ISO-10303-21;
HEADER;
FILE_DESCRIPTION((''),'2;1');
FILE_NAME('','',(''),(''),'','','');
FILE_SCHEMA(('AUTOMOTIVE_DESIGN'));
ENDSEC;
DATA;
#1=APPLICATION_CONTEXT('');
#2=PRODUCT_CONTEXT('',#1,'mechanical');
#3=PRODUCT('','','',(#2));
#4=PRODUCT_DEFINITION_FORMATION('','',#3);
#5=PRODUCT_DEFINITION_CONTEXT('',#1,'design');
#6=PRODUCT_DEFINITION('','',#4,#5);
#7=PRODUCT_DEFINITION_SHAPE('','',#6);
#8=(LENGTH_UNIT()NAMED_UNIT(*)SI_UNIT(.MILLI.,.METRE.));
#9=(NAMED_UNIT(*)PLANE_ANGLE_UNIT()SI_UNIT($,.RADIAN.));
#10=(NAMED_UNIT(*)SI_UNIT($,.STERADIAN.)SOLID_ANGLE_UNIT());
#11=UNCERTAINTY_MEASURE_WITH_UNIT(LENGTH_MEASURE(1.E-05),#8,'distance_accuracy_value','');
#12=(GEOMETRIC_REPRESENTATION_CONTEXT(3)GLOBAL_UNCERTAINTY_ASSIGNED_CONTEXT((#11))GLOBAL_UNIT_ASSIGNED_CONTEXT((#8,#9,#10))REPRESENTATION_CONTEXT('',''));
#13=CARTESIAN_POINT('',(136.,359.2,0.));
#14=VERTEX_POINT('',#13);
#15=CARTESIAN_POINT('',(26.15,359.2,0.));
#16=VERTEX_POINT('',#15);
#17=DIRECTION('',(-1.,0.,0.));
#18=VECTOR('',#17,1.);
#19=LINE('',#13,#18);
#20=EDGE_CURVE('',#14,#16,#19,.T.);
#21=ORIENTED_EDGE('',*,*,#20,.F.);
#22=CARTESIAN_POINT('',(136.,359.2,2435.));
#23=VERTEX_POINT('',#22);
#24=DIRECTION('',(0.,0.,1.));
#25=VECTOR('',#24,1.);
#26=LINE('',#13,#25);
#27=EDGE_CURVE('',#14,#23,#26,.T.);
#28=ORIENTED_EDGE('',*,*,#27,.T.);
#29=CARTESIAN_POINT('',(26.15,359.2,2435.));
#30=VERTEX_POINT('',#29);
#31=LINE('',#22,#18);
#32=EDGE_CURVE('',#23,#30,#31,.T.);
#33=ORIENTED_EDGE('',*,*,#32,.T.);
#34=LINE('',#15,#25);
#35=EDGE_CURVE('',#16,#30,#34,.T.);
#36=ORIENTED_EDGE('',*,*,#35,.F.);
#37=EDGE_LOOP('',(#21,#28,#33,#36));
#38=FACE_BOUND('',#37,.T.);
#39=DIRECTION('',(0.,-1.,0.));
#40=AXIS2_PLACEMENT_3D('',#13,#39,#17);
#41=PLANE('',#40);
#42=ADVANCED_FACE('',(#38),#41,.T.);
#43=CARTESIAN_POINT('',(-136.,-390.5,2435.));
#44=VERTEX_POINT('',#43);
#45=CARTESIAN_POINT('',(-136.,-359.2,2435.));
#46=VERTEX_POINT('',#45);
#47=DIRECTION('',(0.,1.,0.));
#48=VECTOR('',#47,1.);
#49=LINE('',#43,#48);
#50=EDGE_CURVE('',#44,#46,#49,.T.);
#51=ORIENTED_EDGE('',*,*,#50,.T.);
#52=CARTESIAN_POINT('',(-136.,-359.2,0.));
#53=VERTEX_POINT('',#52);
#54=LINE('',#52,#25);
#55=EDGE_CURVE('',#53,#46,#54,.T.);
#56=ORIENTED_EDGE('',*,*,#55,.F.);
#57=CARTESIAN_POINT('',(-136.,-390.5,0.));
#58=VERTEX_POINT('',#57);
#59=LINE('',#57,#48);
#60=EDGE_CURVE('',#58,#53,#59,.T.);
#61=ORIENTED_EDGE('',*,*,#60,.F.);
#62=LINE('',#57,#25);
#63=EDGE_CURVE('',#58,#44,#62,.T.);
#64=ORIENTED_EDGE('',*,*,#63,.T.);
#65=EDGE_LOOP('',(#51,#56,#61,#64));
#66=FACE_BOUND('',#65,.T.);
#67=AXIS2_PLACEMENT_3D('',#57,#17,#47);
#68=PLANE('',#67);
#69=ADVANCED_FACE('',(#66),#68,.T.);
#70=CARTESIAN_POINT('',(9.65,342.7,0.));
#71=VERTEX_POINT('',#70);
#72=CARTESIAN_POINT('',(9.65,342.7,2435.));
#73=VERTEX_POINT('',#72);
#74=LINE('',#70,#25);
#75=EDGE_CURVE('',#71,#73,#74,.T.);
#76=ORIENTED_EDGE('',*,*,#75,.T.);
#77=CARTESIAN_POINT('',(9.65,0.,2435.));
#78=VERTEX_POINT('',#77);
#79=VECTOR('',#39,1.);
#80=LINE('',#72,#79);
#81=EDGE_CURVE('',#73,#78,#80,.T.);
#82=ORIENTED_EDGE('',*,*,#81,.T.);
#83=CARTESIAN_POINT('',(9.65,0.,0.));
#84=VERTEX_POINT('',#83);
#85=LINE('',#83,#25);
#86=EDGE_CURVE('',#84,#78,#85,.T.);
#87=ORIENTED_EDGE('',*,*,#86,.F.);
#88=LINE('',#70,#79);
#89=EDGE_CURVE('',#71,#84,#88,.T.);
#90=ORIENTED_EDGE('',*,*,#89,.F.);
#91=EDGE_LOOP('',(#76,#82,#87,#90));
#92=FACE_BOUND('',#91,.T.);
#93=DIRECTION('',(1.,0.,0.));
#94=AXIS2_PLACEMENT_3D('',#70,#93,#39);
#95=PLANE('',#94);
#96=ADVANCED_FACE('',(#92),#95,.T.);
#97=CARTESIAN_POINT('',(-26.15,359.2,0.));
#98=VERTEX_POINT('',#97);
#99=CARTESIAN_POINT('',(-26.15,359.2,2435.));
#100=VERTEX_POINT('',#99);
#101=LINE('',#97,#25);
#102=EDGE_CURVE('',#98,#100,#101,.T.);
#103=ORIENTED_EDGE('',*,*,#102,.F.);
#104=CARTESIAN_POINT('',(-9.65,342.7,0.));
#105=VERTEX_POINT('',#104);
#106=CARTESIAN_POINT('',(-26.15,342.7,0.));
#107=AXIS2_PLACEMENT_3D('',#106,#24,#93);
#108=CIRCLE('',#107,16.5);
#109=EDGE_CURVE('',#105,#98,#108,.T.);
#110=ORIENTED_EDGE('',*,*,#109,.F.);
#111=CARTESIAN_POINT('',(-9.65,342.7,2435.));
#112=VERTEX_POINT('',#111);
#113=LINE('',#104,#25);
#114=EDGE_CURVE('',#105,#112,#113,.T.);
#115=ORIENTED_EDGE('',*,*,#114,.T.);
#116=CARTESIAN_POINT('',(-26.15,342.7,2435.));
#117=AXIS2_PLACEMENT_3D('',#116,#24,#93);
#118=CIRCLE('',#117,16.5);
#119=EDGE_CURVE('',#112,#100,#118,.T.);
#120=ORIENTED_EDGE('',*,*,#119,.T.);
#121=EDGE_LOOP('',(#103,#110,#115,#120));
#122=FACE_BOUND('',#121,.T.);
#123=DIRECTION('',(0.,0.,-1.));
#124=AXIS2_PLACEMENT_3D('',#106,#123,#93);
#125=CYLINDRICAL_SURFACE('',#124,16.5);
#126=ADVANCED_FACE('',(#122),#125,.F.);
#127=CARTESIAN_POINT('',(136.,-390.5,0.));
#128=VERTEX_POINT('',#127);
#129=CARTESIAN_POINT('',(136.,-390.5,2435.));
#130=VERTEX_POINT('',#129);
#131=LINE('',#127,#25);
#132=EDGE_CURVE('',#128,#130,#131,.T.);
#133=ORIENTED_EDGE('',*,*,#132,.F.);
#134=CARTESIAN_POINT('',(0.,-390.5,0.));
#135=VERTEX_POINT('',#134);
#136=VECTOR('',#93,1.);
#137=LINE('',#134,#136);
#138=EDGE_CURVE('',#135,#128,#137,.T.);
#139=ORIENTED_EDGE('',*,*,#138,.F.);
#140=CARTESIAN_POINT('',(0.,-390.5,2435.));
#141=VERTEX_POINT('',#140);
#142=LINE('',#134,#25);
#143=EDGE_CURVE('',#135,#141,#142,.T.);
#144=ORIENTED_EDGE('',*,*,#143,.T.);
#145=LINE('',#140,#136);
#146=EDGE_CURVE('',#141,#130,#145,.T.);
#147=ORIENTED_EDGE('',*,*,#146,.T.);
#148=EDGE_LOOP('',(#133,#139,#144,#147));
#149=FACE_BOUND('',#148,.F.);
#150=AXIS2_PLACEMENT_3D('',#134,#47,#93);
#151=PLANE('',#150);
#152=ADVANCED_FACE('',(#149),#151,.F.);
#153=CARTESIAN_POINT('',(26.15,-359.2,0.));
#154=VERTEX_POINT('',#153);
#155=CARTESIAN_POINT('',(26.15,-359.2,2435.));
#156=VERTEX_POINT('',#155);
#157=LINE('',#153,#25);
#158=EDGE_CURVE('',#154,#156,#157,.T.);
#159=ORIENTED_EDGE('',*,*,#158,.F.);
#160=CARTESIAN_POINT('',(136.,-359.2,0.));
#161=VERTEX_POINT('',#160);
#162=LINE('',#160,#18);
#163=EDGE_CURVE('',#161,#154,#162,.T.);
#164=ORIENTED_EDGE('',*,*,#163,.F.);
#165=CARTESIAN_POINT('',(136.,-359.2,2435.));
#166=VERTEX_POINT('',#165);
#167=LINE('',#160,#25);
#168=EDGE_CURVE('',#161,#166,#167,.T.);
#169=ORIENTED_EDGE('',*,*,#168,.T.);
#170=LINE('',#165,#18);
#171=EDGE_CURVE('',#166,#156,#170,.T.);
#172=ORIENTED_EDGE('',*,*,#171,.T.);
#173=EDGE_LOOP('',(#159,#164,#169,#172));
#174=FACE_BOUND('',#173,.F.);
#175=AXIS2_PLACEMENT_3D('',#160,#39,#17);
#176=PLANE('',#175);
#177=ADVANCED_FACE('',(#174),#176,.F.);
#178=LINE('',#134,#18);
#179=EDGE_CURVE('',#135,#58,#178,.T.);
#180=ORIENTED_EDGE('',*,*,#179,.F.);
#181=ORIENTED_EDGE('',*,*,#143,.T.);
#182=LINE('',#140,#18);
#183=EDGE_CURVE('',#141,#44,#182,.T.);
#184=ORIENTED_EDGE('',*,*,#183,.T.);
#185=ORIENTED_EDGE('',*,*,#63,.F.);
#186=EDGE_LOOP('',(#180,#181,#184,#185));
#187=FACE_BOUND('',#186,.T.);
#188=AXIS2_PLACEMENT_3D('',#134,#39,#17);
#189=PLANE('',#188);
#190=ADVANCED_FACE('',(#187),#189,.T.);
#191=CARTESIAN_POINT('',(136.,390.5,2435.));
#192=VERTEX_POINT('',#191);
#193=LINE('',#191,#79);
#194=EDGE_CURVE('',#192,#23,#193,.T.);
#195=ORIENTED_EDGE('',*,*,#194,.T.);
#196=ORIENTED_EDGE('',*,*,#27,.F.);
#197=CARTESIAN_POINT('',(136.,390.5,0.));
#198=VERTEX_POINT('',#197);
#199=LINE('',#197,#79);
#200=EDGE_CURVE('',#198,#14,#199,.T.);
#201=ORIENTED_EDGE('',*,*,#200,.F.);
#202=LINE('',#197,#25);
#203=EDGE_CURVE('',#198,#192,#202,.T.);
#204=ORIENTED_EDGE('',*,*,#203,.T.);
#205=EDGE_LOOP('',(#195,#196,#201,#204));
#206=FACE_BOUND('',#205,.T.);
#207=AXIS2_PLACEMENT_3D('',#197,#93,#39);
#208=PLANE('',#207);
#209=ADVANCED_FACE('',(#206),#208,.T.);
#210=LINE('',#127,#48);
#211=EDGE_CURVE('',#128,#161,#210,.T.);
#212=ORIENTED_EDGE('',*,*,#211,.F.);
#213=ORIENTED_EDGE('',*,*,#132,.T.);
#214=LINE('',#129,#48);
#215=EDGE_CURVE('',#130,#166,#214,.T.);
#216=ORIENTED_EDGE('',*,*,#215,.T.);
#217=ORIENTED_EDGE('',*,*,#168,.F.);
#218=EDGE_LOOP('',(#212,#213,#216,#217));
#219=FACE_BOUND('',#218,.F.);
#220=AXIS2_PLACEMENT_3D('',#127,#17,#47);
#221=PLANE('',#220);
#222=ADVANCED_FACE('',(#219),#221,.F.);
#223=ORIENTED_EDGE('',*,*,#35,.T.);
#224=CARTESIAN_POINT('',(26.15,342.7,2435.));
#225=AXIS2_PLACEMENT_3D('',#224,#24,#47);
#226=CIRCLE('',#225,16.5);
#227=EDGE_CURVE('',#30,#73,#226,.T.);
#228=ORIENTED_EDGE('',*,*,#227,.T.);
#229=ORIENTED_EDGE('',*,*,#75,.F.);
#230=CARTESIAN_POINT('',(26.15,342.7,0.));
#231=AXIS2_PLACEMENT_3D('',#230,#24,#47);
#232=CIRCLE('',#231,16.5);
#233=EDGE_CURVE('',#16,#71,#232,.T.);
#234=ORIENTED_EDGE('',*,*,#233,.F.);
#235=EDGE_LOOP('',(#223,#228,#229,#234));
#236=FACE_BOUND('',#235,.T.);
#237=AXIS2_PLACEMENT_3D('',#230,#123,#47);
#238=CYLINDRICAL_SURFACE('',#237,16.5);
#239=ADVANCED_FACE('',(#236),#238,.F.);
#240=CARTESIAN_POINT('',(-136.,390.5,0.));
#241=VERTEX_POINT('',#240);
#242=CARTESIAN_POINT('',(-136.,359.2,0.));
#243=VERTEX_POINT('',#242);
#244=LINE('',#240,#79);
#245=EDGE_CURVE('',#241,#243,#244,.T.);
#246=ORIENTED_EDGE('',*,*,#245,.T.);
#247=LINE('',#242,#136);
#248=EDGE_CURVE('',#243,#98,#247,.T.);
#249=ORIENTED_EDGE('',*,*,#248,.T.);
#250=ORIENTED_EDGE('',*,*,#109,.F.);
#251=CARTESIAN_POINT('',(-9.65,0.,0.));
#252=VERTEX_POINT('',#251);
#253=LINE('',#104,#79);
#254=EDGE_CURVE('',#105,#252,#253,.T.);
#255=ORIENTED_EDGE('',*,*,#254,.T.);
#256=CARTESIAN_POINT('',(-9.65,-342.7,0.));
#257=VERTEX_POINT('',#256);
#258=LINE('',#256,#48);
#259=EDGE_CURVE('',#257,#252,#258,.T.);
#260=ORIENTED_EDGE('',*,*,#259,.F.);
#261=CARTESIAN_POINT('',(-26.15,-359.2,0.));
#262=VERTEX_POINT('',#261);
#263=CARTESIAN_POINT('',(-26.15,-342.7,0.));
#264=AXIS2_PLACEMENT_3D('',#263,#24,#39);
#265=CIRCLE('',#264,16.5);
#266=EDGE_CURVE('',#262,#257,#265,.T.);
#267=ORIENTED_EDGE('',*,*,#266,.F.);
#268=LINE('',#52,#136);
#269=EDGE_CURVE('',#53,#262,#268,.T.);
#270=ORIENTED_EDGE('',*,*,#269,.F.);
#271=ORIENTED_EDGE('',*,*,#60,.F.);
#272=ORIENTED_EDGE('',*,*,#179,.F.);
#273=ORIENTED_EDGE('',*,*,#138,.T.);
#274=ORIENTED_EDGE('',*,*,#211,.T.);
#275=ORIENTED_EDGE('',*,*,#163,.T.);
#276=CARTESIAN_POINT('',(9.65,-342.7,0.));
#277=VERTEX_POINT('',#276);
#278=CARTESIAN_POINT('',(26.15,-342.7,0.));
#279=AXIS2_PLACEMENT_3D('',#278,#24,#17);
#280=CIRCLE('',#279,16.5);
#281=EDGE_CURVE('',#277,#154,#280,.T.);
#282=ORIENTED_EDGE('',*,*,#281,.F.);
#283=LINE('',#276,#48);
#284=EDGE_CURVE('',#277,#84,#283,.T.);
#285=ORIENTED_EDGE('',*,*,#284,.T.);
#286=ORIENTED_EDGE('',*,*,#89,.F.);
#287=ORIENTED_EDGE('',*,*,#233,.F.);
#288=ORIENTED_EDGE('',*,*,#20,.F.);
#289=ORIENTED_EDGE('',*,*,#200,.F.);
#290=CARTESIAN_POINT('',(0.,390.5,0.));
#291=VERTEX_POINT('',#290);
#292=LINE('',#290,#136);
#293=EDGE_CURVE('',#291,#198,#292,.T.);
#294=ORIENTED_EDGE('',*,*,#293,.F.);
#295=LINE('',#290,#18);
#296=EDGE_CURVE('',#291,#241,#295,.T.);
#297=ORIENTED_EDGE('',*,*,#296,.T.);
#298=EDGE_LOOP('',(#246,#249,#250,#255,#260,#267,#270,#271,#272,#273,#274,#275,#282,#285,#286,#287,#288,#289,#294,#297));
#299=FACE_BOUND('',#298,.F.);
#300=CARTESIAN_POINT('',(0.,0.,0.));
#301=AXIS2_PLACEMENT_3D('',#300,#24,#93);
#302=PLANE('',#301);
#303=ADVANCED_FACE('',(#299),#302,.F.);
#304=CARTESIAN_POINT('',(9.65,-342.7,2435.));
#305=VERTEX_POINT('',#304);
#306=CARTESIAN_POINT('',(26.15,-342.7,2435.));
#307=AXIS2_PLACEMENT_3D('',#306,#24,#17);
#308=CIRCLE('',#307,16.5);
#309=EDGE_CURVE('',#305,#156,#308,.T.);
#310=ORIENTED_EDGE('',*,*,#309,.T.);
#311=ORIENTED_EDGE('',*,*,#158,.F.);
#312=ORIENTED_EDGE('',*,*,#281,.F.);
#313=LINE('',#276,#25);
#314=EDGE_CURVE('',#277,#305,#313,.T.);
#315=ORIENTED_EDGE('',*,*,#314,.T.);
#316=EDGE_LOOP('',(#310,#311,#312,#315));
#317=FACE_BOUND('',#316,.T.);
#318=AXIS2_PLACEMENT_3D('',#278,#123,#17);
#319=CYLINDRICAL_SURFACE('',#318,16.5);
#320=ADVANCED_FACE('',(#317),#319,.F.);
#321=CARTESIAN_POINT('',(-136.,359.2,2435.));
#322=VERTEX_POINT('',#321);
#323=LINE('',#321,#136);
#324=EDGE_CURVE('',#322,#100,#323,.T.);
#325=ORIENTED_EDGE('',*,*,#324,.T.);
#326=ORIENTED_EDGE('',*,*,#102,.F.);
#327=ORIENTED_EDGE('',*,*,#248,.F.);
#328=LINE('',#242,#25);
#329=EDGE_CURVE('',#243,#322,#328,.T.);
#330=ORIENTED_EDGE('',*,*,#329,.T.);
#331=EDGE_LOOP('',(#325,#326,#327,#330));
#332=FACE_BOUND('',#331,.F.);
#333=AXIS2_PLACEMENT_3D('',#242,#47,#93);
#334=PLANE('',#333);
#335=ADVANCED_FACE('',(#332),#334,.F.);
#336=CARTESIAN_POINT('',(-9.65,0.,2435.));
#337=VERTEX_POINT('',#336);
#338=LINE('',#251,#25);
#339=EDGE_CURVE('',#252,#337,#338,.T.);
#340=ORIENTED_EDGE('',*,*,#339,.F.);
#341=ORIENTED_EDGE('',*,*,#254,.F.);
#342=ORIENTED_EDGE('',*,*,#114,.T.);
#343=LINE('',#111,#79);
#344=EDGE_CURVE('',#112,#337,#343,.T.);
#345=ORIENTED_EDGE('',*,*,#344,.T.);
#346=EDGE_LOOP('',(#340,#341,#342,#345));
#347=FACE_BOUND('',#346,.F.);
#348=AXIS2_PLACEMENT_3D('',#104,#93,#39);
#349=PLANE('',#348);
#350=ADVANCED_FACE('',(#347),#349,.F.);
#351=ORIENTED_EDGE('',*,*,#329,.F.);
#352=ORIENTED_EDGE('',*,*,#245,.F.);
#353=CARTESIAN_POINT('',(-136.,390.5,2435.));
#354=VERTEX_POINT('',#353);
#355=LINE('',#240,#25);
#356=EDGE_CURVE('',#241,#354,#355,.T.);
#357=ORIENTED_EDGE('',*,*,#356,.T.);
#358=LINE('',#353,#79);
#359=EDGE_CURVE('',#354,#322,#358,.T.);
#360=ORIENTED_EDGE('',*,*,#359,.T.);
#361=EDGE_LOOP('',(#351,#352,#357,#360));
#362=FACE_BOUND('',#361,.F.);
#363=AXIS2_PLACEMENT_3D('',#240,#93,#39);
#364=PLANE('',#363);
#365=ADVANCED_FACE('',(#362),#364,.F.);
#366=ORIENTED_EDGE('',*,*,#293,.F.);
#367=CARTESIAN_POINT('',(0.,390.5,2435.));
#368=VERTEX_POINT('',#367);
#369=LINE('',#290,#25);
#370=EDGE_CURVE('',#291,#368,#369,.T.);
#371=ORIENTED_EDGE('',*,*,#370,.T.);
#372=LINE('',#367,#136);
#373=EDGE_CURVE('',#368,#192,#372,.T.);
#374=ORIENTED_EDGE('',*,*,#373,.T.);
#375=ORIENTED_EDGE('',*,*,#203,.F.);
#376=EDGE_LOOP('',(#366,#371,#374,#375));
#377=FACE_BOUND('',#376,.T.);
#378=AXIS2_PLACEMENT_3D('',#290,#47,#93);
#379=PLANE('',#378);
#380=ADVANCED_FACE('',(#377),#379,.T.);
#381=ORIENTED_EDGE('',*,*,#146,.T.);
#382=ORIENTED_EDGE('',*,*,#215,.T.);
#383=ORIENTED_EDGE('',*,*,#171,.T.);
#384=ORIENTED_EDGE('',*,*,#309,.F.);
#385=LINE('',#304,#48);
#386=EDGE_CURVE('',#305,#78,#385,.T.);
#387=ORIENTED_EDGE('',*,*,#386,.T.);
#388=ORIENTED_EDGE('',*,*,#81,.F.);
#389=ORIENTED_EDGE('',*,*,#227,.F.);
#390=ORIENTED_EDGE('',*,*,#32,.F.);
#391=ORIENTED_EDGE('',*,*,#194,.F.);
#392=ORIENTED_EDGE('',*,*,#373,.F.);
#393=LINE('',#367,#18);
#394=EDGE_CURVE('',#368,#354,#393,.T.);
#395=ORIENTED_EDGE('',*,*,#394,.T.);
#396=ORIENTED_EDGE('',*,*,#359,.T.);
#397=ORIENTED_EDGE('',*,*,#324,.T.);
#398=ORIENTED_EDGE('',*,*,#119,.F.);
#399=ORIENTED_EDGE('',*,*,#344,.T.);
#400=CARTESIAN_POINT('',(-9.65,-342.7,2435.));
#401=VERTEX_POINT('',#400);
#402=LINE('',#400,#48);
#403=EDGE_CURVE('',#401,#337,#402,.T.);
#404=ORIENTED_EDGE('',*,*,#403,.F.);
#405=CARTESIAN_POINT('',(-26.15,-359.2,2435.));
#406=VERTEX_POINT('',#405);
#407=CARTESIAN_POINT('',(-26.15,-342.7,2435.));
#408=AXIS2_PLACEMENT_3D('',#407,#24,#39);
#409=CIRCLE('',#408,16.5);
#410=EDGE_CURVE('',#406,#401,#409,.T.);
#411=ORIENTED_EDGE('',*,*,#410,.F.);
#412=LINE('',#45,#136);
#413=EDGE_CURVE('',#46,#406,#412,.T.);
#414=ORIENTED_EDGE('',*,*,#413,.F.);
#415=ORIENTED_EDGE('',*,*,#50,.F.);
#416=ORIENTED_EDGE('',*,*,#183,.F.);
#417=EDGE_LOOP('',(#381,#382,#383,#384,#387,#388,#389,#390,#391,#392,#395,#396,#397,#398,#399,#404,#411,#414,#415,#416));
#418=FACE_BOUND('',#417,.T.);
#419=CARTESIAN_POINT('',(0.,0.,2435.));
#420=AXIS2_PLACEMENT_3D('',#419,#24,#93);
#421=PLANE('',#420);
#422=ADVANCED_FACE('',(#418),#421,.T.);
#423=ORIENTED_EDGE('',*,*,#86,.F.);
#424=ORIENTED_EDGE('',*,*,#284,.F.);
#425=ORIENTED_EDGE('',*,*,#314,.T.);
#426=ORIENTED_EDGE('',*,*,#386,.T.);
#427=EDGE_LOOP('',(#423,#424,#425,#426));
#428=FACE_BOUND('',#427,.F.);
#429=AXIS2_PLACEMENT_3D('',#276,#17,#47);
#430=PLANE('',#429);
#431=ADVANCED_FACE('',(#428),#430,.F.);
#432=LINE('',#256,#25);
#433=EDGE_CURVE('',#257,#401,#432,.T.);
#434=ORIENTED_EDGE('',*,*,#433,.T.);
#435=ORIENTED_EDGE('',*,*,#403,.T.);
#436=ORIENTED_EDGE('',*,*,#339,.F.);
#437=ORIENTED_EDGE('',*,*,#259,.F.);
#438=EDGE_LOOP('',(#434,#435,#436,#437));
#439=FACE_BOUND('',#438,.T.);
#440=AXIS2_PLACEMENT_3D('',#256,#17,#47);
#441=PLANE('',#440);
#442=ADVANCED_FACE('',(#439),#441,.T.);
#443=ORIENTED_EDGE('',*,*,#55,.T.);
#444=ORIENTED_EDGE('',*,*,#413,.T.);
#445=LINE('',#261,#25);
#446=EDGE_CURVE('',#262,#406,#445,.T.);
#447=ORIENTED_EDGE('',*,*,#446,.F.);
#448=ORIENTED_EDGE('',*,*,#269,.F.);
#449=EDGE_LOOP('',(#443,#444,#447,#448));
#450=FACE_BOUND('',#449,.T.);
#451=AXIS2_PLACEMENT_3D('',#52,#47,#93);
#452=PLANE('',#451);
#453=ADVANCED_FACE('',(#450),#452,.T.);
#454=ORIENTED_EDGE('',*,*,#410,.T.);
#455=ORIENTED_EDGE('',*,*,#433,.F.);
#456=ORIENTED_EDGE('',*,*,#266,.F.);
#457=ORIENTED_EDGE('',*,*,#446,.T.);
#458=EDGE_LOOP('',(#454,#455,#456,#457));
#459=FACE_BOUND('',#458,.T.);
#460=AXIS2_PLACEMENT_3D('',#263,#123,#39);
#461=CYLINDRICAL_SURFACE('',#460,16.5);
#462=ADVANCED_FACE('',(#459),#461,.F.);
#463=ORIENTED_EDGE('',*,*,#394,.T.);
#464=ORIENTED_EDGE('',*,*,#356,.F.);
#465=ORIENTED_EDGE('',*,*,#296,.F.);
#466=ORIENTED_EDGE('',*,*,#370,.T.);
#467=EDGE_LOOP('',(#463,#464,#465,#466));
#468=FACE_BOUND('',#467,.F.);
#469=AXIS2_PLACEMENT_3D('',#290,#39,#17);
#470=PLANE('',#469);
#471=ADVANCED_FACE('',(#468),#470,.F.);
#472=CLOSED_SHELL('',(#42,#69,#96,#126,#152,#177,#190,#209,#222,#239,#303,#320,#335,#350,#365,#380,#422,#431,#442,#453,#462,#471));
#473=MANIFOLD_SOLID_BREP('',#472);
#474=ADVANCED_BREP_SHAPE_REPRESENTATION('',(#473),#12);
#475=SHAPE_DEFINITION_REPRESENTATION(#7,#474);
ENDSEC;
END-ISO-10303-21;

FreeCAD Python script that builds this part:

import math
import FreeCAD as App
import Part
import Sketcher
from FreeCAD import Vector

doc = App.newDocument("Part")
params = doc.addObject("Spreadsheet::Sheet", "Params")
for row, (alias, value) in enumerate([
    ("sketch1_radius", "16.5 mm"),
    ("sketch1_height", "31.3 mm"),
    ("pad1_length", "2435 mm"),
], start=1):
    params.set(f"A{row}", alias)
    params.set(f"B{row}", "=" + value)
    params.setAlias(f"B{row}", alias)

body = doc.addObject("PartDesign::Body", "Body")

sketch1 = doc.addObject("Sketcher::SketchObject", "Sketch")
body.addObject(sketch1)
sketch1.AttachmentSupport = (doc.XY_Plane, [""])
sketch1.MapMode = "FlatFace"
sketch1.addGeometry(Part.LineSegment(Vector(-136, -359, 0), Vector(-136, -390, 0)), False)
sketch1.addGeometry(Part.LineSegment(Vector(-136, -390, 0), Vector(136, -390, 0)), False)
sketch1.addGeometry(Part.LineSegment(Vector(136, -390, 0), Vector(136, -359, 0)), False)
sketch1.addGeometry(Part.LineSegment(Vector(136, -359, 0), Vector(26, -359, 0)), False)
sketch1.addGeometry(Part.ArcOfCircle(Part.Circle(Vector(26, -343, 0), Vector(0, 0, 1), 16), math.radians(180), math.radians(270)), False)
sketch1.addGeometry(Part.LineSegment(Vector(10, -343, 0), Vector(10, 343, 0)), False)
sketch1.addGeometry(Part.ArcOfCircle(Part.Circle(Vector(26, 343, 0), Vector(0, 0, 1), 16), math.radians(90), math.radians(180)), False)
sketch1.addGeometry(Part.LineSegment(Vector(26, 359, 0), Vector(136, 359, 0)), False)
sketch1.addGeometry(Part.LineSegment(Vector(136, 359, 0), Vector(136, 390, 0)), False)
sketch1.addGeometry(Part.LineSegment(Vector(136, 390, 0), Vector(-136, 390, 0)), False)
sketch1.addGeometry(Part.LineSegment(Vector(-136, 390, 0), Vector(-136, 359, 0)), False)
sketch1.addGeometry(Part.LineSegment(Vector(-136, 359, 0), Vector(-26, 359, 0)), False)
sketch1.addGeometry(Part.ArcOfCircle(Part.Circle(Vector(-26, 343, 0), Vector(0, 0, 1), 16), math.radians(0), math.radians(90)), False)
sketch1.addGeometry(Part.LineSegment(Vector(-10, 343, 0), Vector(-10, -343, 0)), False)
sketch1.addGeometry(Part.ArcOfCircle(Part.Circle(Vector(-26, -343, 0), Vector(0, 0, 1), 16), math.radians(-90), math.radians(0)), False)
sketch1.addGeometry(Part.LineSegment(Vector(-26, -359, 0), Vector(-136, -359, 0)), False)
sketch1.addConstraint(Sketcher.Constraint("Coincident", 0, 2, 1, 1))
sketch1.addConstraint(Sketcher.Constraint("Coincident", 1, 2, 2, 1))
sketch1.addConstraint(Sketcher.Constraint("Coincident", 2, 2, 3, 1))
sketch1.addConstraint(Sketcher.Constraint("Tangent", 3, 2, 4, 2))
sketch1.addConstraint(Sketcher.Constraint("Tangent", 4, 1, 5, 1))
sketch1.addConstraint(Sketcher.Constraint("Tangent", 5, 2, 6, 2))
sketch1.addConstraint(Sketcher.Constraint("Tangent", 6, 1, 7, 1))
sketch1.addConstraint(Sketcher.Constraint("Coincident", 7, 2, 8, 1))
sketch1.addConstraint(Sketcher.Constraint("Coincident", 8, 2, 9, 1))
sketch1.addConstraint(Sketcher.Constraint("Coincident", 9, 2, 10, 1))
sketch1.addConstraint(Sketcher.Constraint("Coincident", 10, 2, 11, 1))
sketch1.addConstraint(Sketcher.Constraint("Tangent", 11, 2, 12, 2))
sketch1.addConstraint(Sketcher.Constraint("Tangent", 12, 1, 13, 1))
sketch1.addConstraint(Sketcher.Constraint("Tangent", 13, 2, 14, 2))
sketch1.addConstraint(Sketcher.Constraint("Tangent", 14, 1, 15, 1))
sketch1.addConstraint(Sketcher.Constraint("Coincident", 15, 2, 0, 1))
sketch1.addConstraint(Sketcher.Constraint("Vertical", 0))
sketch1.addConstraint(Sketcher.Constraint("Horizontal", 1))
sketch1.addConstraint(Sketcher.Constraint("Vertical", 2))
sketch1.addConstraint(Sketcher.Constraint("Horizontal", 3))
sketch1.addConstraint(Sketcher.Constraint("Vertical", 5))
sketch1.addConstraint(Sketcher.Constraint("Horizontal", 7))
sketch1.addConstraint(Sketcher.Constraint("Vertical", 8))
sketch1.addConstraint(Sketcher.Constraint("Horizontal", 9))
sketch1.addConstraint(Sketcher.Constraint("Vertical", 10))
sketch1.addConstraint(Sketcher.Constraint("Horizontal", 11))
sketch1.addConstraint(Sketcher.Constraint("Vertical", 13))
sketch1.addConstraint(Sketcher.Constraint("Horizontal", 15))
sketch1.addConstraint(Sketcher.Constraint("Equal", 4, 6))
sketch1.addConstraint(Sketcher.Constraint("Equal", 6, 12))
sketch1.addConstraint(Sketcher.Constraint("Equal", 12, 14))
sketch1.addConstraint(Sketcher.Constraint("Symmetric", 4, 3, 12, 3, -1, 1))
sketch1.addConstraint(Sketcher.Constraint("Symmetric", 0, 2, 8, 2, -1, 1))
sketch1.addConstraint(Sketcher.Constraint("Symmetric", 7, 2, 10, 2, -2))
sketch1.addConstraint(Sketcher.Constraint("Symmetric", 2, 2, 15, 2, -2))
sketch1.addConstraint(Sketcher.Constraint("Radius", 4, 16.5))
sketch1.addConstraint(Sketcher.Constraint("DistanceY", 0, 2, 0, 1, 31.3))
sketch1.addConstraint(Sketcher.Constraint("DistanceX", 0, 2, -1, 1, 136.0))
sketch1.addConstraint(Sketcher.Constraint("DistanceY", 0, 2, -1, 1, 390.5))
sketch1.addConstraint(Sketcher.Constraint("DistanceX", -1, 1, 4, 1, 9.65))
sketch1.setExpression("Constraints[35]", "Params.sketch1_radius")
sketch1.setExpression("Constraints[36]", "Params.sketch1_height")
pad1 = doc.addObject("PartDesign::Pad", "Pad")
body.addObject(pad1)
pad1.Profile = sketch1
pad1.setExpression("Length", "Params.pad1_length")

doc.recompute()
